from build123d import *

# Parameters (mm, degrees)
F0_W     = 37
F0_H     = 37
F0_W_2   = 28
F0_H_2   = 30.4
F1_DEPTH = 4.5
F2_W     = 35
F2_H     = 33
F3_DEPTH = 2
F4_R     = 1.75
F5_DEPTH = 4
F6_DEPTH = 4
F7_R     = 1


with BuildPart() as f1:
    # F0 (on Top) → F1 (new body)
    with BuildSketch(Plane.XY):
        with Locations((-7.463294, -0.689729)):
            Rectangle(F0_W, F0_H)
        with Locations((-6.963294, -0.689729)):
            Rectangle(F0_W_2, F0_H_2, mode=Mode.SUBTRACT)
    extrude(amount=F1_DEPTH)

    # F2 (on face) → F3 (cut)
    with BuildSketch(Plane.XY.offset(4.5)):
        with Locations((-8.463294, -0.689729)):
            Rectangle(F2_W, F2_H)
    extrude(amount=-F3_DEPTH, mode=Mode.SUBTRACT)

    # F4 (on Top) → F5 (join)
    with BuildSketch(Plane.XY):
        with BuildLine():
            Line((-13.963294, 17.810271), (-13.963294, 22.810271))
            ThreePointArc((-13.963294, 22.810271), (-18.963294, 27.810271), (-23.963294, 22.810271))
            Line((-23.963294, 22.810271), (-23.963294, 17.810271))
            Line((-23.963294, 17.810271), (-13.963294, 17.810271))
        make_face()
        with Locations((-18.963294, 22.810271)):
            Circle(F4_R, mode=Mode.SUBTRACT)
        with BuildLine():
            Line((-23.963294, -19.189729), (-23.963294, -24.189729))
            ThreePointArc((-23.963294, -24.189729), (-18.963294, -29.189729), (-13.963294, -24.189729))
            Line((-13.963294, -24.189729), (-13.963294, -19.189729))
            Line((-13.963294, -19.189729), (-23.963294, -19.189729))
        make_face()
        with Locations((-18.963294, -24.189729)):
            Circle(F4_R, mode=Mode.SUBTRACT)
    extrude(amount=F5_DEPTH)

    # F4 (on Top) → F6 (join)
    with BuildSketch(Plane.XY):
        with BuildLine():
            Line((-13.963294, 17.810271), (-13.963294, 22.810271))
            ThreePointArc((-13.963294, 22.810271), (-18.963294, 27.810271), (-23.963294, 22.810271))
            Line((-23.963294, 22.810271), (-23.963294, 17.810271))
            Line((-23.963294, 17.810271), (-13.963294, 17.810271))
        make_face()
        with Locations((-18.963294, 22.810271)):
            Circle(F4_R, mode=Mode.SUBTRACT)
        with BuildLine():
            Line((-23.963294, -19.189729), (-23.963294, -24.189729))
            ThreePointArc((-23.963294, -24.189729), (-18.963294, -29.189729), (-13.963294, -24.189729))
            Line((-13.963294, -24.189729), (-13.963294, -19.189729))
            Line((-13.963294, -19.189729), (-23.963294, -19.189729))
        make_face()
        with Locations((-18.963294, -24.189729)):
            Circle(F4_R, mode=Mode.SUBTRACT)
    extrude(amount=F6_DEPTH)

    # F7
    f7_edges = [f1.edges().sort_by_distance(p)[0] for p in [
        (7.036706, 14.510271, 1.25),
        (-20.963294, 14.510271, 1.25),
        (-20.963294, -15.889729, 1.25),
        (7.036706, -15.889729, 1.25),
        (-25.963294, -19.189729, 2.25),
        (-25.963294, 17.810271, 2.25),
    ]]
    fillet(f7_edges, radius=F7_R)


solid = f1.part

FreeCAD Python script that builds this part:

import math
import FreeCAD as App
import Part
import Sketcher

V = App.Vector


def edges_at(feature, points):
    """Names of the edges that pass closest to the given points."""
    edges = feature.Shape.Edges
    near = lambda p: min(range(len(edges)), key=lambda i: edges[i].distToShape(Part.Vertex(*p))[0])
    return sorted({f"Edge{near(p) + 1}" for p in points})

doc = App.newDocument("Part")
body = doc.addObject("PartDesign::Body", "Body")

sketch1 = body.newObject("Sketcher::SketchObject", "Sketch")
sketch1.AttachmentSupport = (doc.getObject("XY_Plane"), [""])
sketch1.MapMode = "FlatFace"
sketch1.addGeometry(Part.LineSegment(V(-25.963294, 17.810271, 0), V(-25.963294, -19.189729, 0)), False)
sketch1.addGeometry(Part.LineSegment(V(-25.963294, -19.189729, 0), V(11.036706, -19.189729, 0)), False)
sketch1.addGeometry(Part.LineSegment(V(11.036706, -19.189729, 0), V(11.036706, 17.810271, 0)), False)
sketch1.addGeometry(Part.LineSegment(V(11.036706, 17.810271, 0), V(-25.963294, 17.810271, 0)), False)
sketch1.addGeometry(Part.LineSegment(V(7.036706, -15.889729, 0), V(-20.963294, -15.889729, 0)), False)
sketch1.addGeometry(Part.LineSegment(V(-20.963294, -15.889729, 0), V(-20.963294, 14.510271, 0)), False)
sketch1.addGeometry(Part.LineSegment(V(-20.963294, 14.510271, 0), V(7.036706, 14.510271, 0)), False)
sketch1.addGeometry(Part.LineSegment(V(7.036706, 14.510271, 0), V(7.036706, -15.889729, 0)), False)
sketch1.addConstraint(Sketcher.Constraint("Coincident", 0, 2, 1, 1))
sketch1.addConstraint(Sketcher.Constraint("Coincident", 1, 2, 2, 1))
sketch1.addConstraint(Sketcher.Constraint("Coincident", 2, 2, 3, 1))
sketch1.addConstraint(Sketcher.Constraint("Coincident", 3, 2, 0, 1))
sketch1.addConstraint(Sketcher.Constraint("Coincident", 4, 2, 5, 1))
sketch1.addConstraint(Sketcher.Constraint("Coincident", 5, 2, 6, 1))
sketch1.addConstraint(Sketcher.Constraint("Coincident", 6, 2, 7, 1))
sketch1.addConstraint(Sketcher.Constraint("Coincident", 7, 2, 4, 1))
sketch1.addConstraint(Sketcher.Constraint("Vertical", 0))
sketch1.addConstraint(Sketcher.Constraint("Horizontal", 1))
sketch1.addConstraint(Sketcher.Constraint("Vertical", 2))
sketch1.addConstraint(Sketcher.Constraint("Horizontal", 3))
sketch1.addConstraint(Sketcher.Constraint("Horizontal", 4))
sketch1.addConstraint(Sketcher.Constraint("Vertical", 5))
sketch1.addConstraint(Sketcher.Constraint("Horizontal", 6))
sketch1.addConstraint(Sketcher.Constraint("Vertical", 7))
sketch1.addConstraint(Sketcher.Constraint("Equal", 3, 0))
sketch1.addConstraint(Sketcher.Constraint("DistanceX", 1, 1, 1, 2, 37.0))
sketch1.addConstraint(Sketcher.Constraint("DistanceX", 4, 2, 4, 1, 28.0))
sketch1.addConstraint(Sketcher.Constraint("DistanceY", 5, 1, 5, 2, 30.4))
sketch1.addConstraint(Sketcher.Constraint("DistanceX", 0, 2, 4, 2, 5.0))
sketch1.addConstraint(Sketcher.Constraint("DistanceY", 0, 2, 4, 2, 3.3))
sketch1.addConstraint(Sketcher.Constraint("DistanceY", 0, 2, -1, 1, 19.189729))
sketch1.addConstraint(Sketcher.Constraint("DistanceX", 0, 2, -1, 1, 25.963294))
pad1 = body.newObject("PartDesign::Pad", "Pad")
pad1.Profile = sketch1
pad1.Length = 4.5

sketch2 = body.newObject("Sketcher::SketchObject", "Sketch001")
sketch2.AttachmentSupport = (doc.getObject("XY_Plane"), [""])
sketch2.MapMode = "FlatFace"
sketch2.AttachmentOffset = App.Placement(V(0, 0, 4.5), App.Rotation())
sketch2.addGeometry(Part.LineSegment(V(-25.963294, 15.810271, 0), V(-25.963294, -17.189729, 0)), False)
sketch2.addGeometry(Part.LineSegment(V(-25.963294, -17.189729, 0), V(9.036706, -17.189729, 0)), False)
sketch2.addGeometry(Part.LineSegment(V(9.036706, -17.189729, 0), V(9.036706, 15.810271, 0)), False)
sketch2.addGeometry(Part.LineSegment(V(9.036706, 15.810271, 0), V(-25.963294, 15.810271, 0)), False)
sketch2.addConstraint(Sketcher.Constraint("Coincident", 0, 2, 1, 1))
sketch2.addConstraint(Sketcher.Constraint("Coincident", 1, 2, 2, 1))
sketch2.addConstraint(Sketcher.Constraint("Coincident", 2, 2, 3, 1))
sketch2.addConstraint(Sketcher.Constraint("Coincident", 3, 2, 0, 1))
sketch2.addConstraint(Sketcher.Constraint("Vertical", 0))
sketch2.addConstraint(Sketcher.Constraint("Horizontal", 1))
sketch2.addConstraint(Sketcher.Constraint("Vertical", 2))
sketch2.addConstraint(Sketcher.Constraint("Horizontal", 3))
sketch2.addConstraint(Sketcher.Constraint("DistanceX", 1, 1, 1, 2, 35.0))
sketch2.addConstraint(Sketcher.Constraint("DistanceY", 0, 2, 0, 1, 33.0))
sketch2.addConstraint(Sketcher.Constraint("DistanceY", 0, 2, -1, 1, 17.189729))
sketch2.addConstraint(Sketcher.Constraint("DistanceX", 0, 2, -1, 1, 25.963294))
pocket1 = body.newObject("PartDesign::Pocket", "Pocket")
pocket1.Profile = sketch2
pocket1.Length = 2

sketch3 = body.newObject("Sketcher::SketchObject", "Sketch002")
sketch3.AttachmentSupport = (doc.getObject("XY_Plane"), [""])
sketch3.MapMode = "FlatFace"
sketch3.addGeometry(Part.LineSegment(V(-13.963294, 17.810271, 0), V(-13.963294, 22.810271, 0)), False)
sketch3.addGeometry(Part.ArcOfCircle(Part.Circle(V(-18.963294, 22.810271, 0), V(0, 0, 1), 5), math.radians(0), math.radians(180)), False)
sketch3.addGeometry(Part.LineSegment(V(-23.963294, 22.810271, 0), V(-23.963294, 17.810271, 0)), False)
sketch3.addGeometry(Part.LineSegment(V(-23.963294, 17.810271, 0), V(-13.963294, 17.810271, 0)), False)
sketch3.addGeometry(Part.Circle(V(-18.963294, 22.810271, 0), V(0, 0, 1), 1.75), False)
sketch3.addGeometry(Part.LineSegment(V(-23.963294, -19.189729, 0), V(-23.963294, -24.189729, 0)), False)
sketch3.addGeometry(Part.ArcOfCircle(Part.Circle(V(-18.963294, -24.189729, 0), V(0, 0, 1), 5), math.radians(180), math.radians(360)), False)
sketch3.addGeometry(Part.LineSegment(V(-13.963294, -24.189729, 0), V(-13.963294, -19.189729, 0)), False)
sketch3.addGeometry(Part.LineSegment(V(-13.963294, -19.189729, 0), V(-23.963294, -19.189729, 0)), False)
sketch3.addGeometry(Part.Circle(V(-18.963294, -24.189729, 0), V(0, 0, 1), 1.75), False)
sketch3.addConstraint(Sketcher.Constraint("Tangent", 0, 2, 1, 1))
sketch3.addConstraint(Sketcher.Constraint("Tangent", 1, 2, 2, 1))
sketch3.addConstraint(Sketcher.Constraint("Coincident", 2, 2, 3, 1))
sketch3.addConstraint(Sketcher.Constraint("Coincident", 3, 2, 0, 1))
sketch3.addConstraint(Sketcher.Constraint("Tangent", 5, 2, 6, 1))
sketch3.addConstraint(Sketcher.Constraint("Tangent", 6, 2, 7, 1))
sketch3.addConstraint(Sketcher.Constraint("Coincident", 7, 2, 8, 1))
sketch3.addConstraint(Sketcher.Constraint("Coincident", 8, 2, 5, 1))
sketch3.addConstraint(Sketcher.Constraint("Vertical", 0))
sketch3.addConstraint(Sketcher.Constraint("Vertical", 2))
sketch3.addConstraint(Sketcher.Constraint("Horizontal", 3))
sketch3.addConstraint(Sketcher.Constraint("Vertical", 5))
sketch3.addConstraint(Sketcher.Constraint("Vertical", 7))
sketch3.addConstraint(Sketcher.Constraint("Horizontal", 8))
sketch3.addConstraint(Sketcher.Constraint("Coincident", 4, 3, 1, 3))
sketch3.addConstraint(Sketcher.Constraint("Coincident", 9, 3, 6, 3))
sketch3.addConstraint(Sketcher.Constraint("Equal", 1, 6))
sketch3.addConstraint(Sketcher.Constraint("Equal", 4, 9))
sketch3.addConstraint(Sketcher.Constraint("Vertical", 4, 3, 6, 3))
sketch3.addConstraint(Sketcher.Constraint("Equal", 2, 5))
sketch3.addConstraint(Sketcher.Constraint("Radius", 1, 5.0))
sketch3.addConstraint(Sketcher.Constraint("Diameter", 4, 3.5))
sketch3.addConstraint(Sketcher.Constraint("DistanceY", 0, 1, 0, 2, 5.0))
sketch3.addConstraint(Sketcher.Constraint("DistanceY", 6, 3, 1, 3, 47.0))
sketch3.addConstraint(Sketcher.Constraint("DistanceY", -1, 1, 1, 3, 22.810271))
sketch3.addConstraint(Sketcher.Constraint("DistanceX", 1, 3, -1, 1, 18.963294))
pad2 = body.newObject("PartDesign::Pad", "Pad001")
pad2.Profile = sketch3
pad2.Length = 4

sketch4 = body.newObject("Sketcher::SketchObject", "Sketch003")
sketch4.AttachmentSupport = (doc.getObject("XY_Plane"), [""])
sketch4.MapMode = "FlatFace"
sketch4.addGeometry(Part.LineSegment(V(-13.963294, 17.810271, 0), V(-13.963294, 22.810271, 0)), False)
sketch4.addGeometry(Part.ArcOfCircle(Part.Circle(V(-18.963294, 22.810271, 0), V(0, 0, 1), 5), math.radians(0), math.radians(180)), False)
sketch4.addGeometry(Part.LineSegment(V(-23.963294, 22.810271, 0), V(-23.963294, 17.810271, 0)), False)
sketch4.addGeometry(Part.LineSegment(V(-23.963294, 17.810271, 0), V(-13.963294, 17.810271, 0)), False)
sketch4.addGeometry(Part.Circle(V(-18.963294, 22.810271, 0), V(0, 0, 1), 1.75), False)
sketch4.addGeometry(Part.LineSegment(V(-23.963294, -19.189729, 0), V(-23.963294, -24.189729, 0)), False)
sketch4.addGeometry(Part.ArcOfCircle(Part.Circle(V(-18.963294, -24.189729, 0), V(0, 0, 1), 5), math.radians(180), math.radians(360)), False)
sketch4.addGeometry(Part.LineSegment(V(-13.963294, -24.189729, 0), V(-13.963294, -19.189729, 0)), False)
sketch4.addGeometry(Part.LineSegment(V(-13.963294, -19.189729, 0), V(-23.963294, -19.189729, 0)), False)
sketch4.addGeometry(Part.Circle(V(-18.963294, -24.189729, 0), V(0, 0, 1), 1.75), False)
sketch4.addConstraint(Sketcher.Constraint("Tangent", 0, 2, 1, 1))
sketch4.addConstraint(Sketcher.Constraint("Tangent", 1, 2, 2, 1))
sketch4.addConstraint(Sketcher.Constraint("Coincident", 2, 2, 3, 1))
sketch4.addConstraint(Sketcher.Constraint("Coincident", 3, 2, 0, 1))
sketch4.addConstraint(Sketcher.Constraint("Tangent", 5, 2, 6, 1))
sketch4.addConstraint(Sketcher.Constraint("Tangent", 6, 2, 7, 1))
sketch4.addConstraint(Sketcher.Constraint("Coincident", 7, 2, 8, 1))
sketch4.addConstraint(Sketcher.Constraint("Coincident", 8, 2, 5, 1))
sketch4.addConstraint(Sketcher.Constraint("Vertical", 0))
sketch4.addConstraint(Sketcher.Constraint("Vertical", 2))
sketch4.addConstraint(Sketcher.Constraint("Horizontal", 3))
sketch4.addConstraint(Sketcher.Constraint("Vertical", 5))
sketch4.addConstraint(Sketcher.Constraint("Vertical", 7))
sketch4.addConstraint(Sketcher.Constraint("Horizontal", 8))
sketch4.addConstraint(Sketcher.Constraint("Coincident", 4, 3, 1, 3))
sketch4.addConstraint(Sketcher.Constraint("Coincident", 9, 3, 6, 3))
sketch4.addConstraint(Sketcher.Constraint("Equal", 1, 6))
sketch4.addConstraint(Sketcher.Constraint("Equal", 4, 9))
sketch4.addConstraint(Sketcher.Constraint("Vertical", 4, 3, 6, 3))
sketch4.addConstraint(Sketcher.Constraint("Equal", 2, 5))
sketch4.addConstraint(Sketcher.Constraint("Radius", 1, 5.0))
sketch4.addConstraint(Sketcher.Constraint("Diameter", 4, 3.5))
sketch4.addConstraint(Sketcher.Constraint("DistanceY", 0, 1, 0, 2, 5.0))
sketch4.addConstraint(Sketcher.Constraint("DistanceY", 6, 3, 1, 3, 47.0))
sketch4.addConstraint(Sketcher.Constraint("DistanceY", -1, 1, 1, 3, 22.810271))
sketch4.addConstraint(Sketcher.Constraint("DistanceX", 1, 3, -1, 1, 18.963294))
pad3 = body.newObject("PartDesign::Pad", "Pad002")
pad3.Profile = sketch4
pad3.Length = 4
doc.recompute()

fillet = body.newObject("PartDesign::Fillet", "Fillet")
fillet.Base = (pad3, edges_at(pad3, [
    (7.037, 14.51, 1.25),
    (-20.963, 14.51, 1.25),
    (-20.963, -15.89, 1.25),
    (7.037, -15.89, 1.25),
    (-25.963, -19.19, 2.25),
    (-25.963, 17.81, 2.25),
]))
fillet.Radius = 1

doc.recompute()
